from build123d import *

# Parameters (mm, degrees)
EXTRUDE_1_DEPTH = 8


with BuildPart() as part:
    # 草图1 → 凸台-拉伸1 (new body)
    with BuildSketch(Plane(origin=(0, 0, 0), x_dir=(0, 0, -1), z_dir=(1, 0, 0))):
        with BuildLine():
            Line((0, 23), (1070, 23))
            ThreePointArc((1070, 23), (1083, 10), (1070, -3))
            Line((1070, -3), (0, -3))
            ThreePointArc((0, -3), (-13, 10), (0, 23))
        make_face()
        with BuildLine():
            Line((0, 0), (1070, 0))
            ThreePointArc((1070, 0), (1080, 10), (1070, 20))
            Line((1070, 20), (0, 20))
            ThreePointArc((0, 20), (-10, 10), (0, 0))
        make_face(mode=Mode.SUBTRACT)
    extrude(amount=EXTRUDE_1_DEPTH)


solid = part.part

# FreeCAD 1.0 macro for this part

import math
import FreeCAD as App
import Part
import Sketcher
from FreeCAD import Vector
Q = App.Units.Quantity

doc = App.newDocument("Part")
params = doc.addObject("Spreadsheet::Sheet", "Params")
for row, (alias, value) in enumerate([
    ("sketch1_radius", "13 mm"),
    ("sketch1_radius2", "10 mm"),
    ("sketch1_height", "1070 mm"),
    ("pad1_length", "8 mm"),
], start=1):
    params.set(f"A{row}", alias)
    params.set(f"B{row}", "=" + value)
    params.setAlias(f"B{row}", alias)

body = doc.addObject("PartDesign::Body", "Body")

# Sketch on YZ plane
sketch1 = body.newObject("Sketcher::SketchObject", "Sketch")
sketch1.AttachmentSupport = (doc.getObject("YZ_Plane"), [""])
sketch1.MapMode = "FlatFace"
sketch1.addGeometry([
    Part.LineSegment(Vector(23, -1070, 0), Vector(23, 0, 0)),  # 0
    Part.ArcOfCircle(Part.Circle(Vector(10, 0, 0), Vector(0, 0, 1), 13), math.radians(0), math.radians(180)),  # 1
    Part.LineSegment(Vector(-3, 0, 0), Vector(-3, -1070, 0)),  # 2
    Part.ArcOfCircle(Part.Circle(Vector(10, -1070, 0), Vector(0, 0, 1), 13), math.radians(180), math.radians(360)),  # 3
    Part.ArcOfCircle(Part.Circle(Vector(10, 0, 0), Vector(0, 0, 1), 10), math.radians(0), math.radians(180)),  # 4
    Part.LineSegment(Vector(20, 0, 0), Vector(20, -1070, 0)),  # 5
    Part.ArcOfCircle(Part.Circle(Vector(10, -1070, 0), Vector(0, 0, 1), 10), math.radians(180), math.radians(360)),  # 6
    Part.LineSegment(Vector(0, -1070, 0), Vector(0, 0, 0)),  # 7
], False)
sketch1.addConstraint([
    Sketcher.Constraint("Tangent", 0, 2, 1, 1),
    Sketcher.Constraint("Tangent", 1, 2, 2, 1),
    Sketcher.Constraint("Tangent", 2, 2, 3, 1),
    Sketcher.Constraint("Tangent", 3, 2, 0, 1),
    Sketcher.Constraint("Tangent", 4, 1, 5, 1),
    Sketcher.Constraint("Tangent", 5, 2, 6, 2),
    Sketcher.Constraint("Tangent", 6, 1, 7, 1),
    Sketcher.Constraint("Tangent", 7, 2, 4, 2),
    Sketcher.Constraint("Vertical", 0),
    Sketcher.Constraint("Vertical", 2),
    Sketcher.Constraint("Vertical", 5),
    Sketcher.Constraint("Vertical", 7),
    Sketcher.Constraint("Coincident", 7, 2, -1, 1),
    Sketcher.Constraint("Coincident", 4, 3, 1, 3),
    Sketcher.Constraint("Horizontal", 6, 3, 2, 2),
    Sketcher.Constraint("Radius", 1, Q("13 mm")),
    Sketcher.Constraint("Radius", 4, Q("10 mm")),
    Sketcher.Constraint("DistanceY", 0, 1, 0, 2, Q("1070 mm")),
])
sketch1.setExpression("Constraints[15]", "Params.sketch1_radius")
sketch1.setExpression("Constraints[16]", "Params.sketch1_radius2")
sketch1.setExpression("Constraints[17]", "Params.sketch1_height")
pad1 = body.newObject("PartDesign::Pad", "Pad")
pad1.Profile = sketch1
pad1.setExpression("Length", "Params.pad1_length")

doc.recompute()
